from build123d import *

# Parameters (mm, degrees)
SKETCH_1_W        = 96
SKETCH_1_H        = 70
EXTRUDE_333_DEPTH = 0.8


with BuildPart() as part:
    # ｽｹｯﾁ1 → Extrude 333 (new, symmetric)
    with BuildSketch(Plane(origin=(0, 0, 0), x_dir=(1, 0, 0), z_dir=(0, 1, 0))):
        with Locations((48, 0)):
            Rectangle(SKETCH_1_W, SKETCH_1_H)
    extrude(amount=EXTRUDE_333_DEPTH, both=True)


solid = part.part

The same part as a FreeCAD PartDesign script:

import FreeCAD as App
import Part
import Sketcher
Q = App.Units.Quantity

doc = App.newDocument("Part")
params = doc.addObject("Spreadsheet::Sheet", "Params")
for row, (alias, value) in enumerate([
    ("sketch1_width", "96 mm"),
    ("sketch1_height", "70 mm"),
    ("pad1_length", "1.6 mm"),
], start=1):
    params.set(f"A{row}", alias)
    params.set(f"B{row}", "=" + value)
    params.setAlias(f"B{row}", alias)

body = doc.addObject("PartDesign::Body", "Body")

# Sketch on XZ plane
sketch1 = body.newObject("Sketcher::SketchObject", "Sketch")
sketch1.AttachmentSupport = (doc.getObject("XZ_Plane"), [""])
sketch1.MapMode = "FlatFace"
sketch1.addGeometry([
    Part.LineSegment(App.Vector(0, -35, 0), App.Vector(0, 35, 0)),
    Part.LineSegment(App.Vector(0, 35, 0), App.Vector(96, 35, 0)),
    Part.LineSegment(App.Vector(96, 35, 0), App.Vector(96, -35, 0)),
    Part.LineSegment(App.Vector(96, -35, 0), App.Vector(0, -35, 0)),
], False)
sketch1.addConstraint([
    Sketcher.Constraint("Coincident", 0, 2, 1, 1),
    Sketcher.Constraint("Coincident", 1, 2, 2, 1),
    Sketcher.Constraint("Coincident", 2, 2, 3, 1),
    Sketcher.Constraint("Coincident", 3, 2, 0, 1),
    Sketcher.Constraint("Vertical", 0),
    Sketcher.Constraint("Horizontal", 1),
    Sketcher.Constraint("Vertical", 2),
    Sketcher.Constraint("Horizontal", 3),
    Sketcher.Constraint("Symmetric", 0, 2, 3, 2, -1, 1),
    Sketcher.Constraint("DistanceX", 1, 1, 1, 2, Q("96 mm")),
    Sketcher.Constraint("DistanceY", 0, 1, 0, 2, Q("70 mm")),
])
sketch1.setExpression("Constraints[9]", "Params.sketch1_width")
sketch1.setExpression("Constraints[10]", "Params.sketch1_height")
pad1 = body.newObject("PartDesign::Pad", "Pad")
pad1.Profile = sketch1
pad1.setExpression("Length", "Params.pad1_length")
pad1.Midplane = True

doc.recompute()
